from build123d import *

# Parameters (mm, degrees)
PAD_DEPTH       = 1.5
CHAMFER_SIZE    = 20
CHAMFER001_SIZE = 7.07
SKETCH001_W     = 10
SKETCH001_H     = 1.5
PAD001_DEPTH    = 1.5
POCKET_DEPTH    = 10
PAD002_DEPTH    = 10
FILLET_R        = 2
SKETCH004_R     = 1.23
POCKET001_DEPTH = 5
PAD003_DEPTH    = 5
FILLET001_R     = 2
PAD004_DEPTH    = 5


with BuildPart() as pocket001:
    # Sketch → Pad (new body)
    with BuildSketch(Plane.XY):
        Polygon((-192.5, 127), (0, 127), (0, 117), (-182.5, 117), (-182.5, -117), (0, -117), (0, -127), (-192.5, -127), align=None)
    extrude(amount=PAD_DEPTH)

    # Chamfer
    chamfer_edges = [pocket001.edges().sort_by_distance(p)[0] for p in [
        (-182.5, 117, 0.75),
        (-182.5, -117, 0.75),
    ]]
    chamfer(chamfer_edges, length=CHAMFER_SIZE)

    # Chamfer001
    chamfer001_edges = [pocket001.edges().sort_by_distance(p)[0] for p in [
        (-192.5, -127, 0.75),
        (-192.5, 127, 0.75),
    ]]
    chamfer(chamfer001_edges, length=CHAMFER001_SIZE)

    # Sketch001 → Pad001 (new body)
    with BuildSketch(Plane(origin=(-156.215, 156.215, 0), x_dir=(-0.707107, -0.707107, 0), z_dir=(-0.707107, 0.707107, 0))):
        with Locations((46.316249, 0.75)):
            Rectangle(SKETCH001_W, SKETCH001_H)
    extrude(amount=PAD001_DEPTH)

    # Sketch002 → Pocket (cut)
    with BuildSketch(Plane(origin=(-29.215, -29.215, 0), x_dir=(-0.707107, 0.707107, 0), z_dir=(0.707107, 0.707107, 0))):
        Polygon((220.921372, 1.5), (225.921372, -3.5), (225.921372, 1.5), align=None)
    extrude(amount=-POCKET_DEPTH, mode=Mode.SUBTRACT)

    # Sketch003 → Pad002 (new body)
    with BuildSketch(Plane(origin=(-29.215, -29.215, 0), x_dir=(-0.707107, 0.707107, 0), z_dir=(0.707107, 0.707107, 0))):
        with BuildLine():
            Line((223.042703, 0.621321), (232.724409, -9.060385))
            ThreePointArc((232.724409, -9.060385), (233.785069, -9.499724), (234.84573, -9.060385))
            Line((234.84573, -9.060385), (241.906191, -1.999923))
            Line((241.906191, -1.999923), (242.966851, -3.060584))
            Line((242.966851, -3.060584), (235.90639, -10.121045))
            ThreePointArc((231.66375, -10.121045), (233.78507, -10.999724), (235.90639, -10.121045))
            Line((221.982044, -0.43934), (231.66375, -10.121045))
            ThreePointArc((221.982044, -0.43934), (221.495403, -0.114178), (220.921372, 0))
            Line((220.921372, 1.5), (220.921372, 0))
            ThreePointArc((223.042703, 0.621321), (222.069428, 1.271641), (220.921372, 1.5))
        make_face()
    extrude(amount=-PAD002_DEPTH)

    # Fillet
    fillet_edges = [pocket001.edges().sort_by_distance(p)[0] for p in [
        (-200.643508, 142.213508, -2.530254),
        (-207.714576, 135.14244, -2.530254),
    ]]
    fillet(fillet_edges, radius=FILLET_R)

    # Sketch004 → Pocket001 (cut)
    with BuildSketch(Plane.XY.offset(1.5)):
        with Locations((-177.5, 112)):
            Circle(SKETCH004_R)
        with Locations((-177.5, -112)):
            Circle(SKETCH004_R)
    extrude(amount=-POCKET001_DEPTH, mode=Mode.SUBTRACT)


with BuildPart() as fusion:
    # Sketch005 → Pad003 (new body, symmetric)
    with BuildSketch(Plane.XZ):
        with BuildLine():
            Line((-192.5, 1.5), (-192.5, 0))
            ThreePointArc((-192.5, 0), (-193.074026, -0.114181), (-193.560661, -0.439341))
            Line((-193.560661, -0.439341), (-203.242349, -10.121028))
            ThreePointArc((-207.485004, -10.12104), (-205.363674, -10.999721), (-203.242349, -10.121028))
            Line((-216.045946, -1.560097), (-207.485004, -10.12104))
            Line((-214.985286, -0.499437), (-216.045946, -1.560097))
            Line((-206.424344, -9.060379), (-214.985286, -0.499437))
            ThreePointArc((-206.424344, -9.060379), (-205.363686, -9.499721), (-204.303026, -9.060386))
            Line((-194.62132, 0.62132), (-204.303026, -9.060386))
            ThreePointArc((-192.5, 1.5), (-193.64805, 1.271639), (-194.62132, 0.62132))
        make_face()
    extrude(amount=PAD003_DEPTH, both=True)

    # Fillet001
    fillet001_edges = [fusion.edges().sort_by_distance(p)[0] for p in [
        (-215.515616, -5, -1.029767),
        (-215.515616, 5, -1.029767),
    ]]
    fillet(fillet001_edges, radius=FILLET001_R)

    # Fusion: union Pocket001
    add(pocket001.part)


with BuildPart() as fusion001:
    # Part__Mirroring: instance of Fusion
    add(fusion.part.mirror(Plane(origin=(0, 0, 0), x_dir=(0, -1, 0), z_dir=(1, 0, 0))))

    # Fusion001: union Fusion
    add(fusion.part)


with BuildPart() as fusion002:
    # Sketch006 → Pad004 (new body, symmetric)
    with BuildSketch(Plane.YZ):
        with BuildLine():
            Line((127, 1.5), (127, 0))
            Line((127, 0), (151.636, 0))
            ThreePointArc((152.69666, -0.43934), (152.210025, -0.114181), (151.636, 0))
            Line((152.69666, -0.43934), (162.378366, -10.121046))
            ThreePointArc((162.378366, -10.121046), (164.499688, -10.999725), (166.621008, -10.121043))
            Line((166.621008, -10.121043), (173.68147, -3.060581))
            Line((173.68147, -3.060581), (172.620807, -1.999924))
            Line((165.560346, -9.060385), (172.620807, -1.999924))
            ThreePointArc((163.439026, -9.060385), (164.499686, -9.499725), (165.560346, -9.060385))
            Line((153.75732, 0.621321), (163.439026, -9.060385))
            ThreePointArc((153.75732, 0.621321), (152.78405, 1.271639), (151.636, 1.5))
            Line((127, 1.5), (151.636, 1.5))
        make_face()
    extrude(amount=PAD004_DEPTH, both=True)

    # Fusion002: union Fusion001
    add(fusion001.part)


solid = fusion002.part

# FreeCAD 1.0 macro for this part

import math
import FreeCAD as App
import Part
import Sketcher
Q = App.Units.Quantity


def edges_at(feature, points):
    """Names of the edges that pass closest to the given points."""
    edges = feature.Shape.Edges
    near = lambda p: min(range(len(edges)), key=lambda i: edges[i].distToShape(Part.Vertex(*p))[0])
    return sorted({f"Edge{near(p) + 1}" for p in points})


def add_polygon(sketch, points):
    """Adds a closed chain of lines whose ends are joined by coincident constraints."""
    first, n = sketch.GeometryCount, len(points)
    for a, b in zip(points, points[1:] + points[:1]):
        sketch.addGeometry(Part.LineSegment(App.Vector(*a, 0), App.Vector(*b, 0)), False)
    for i in range(n):
        sketch.addConstraint(Sketcher.Constraint("Coincident", first + i, 2, first + (i + 1) % n, 1))

doc = App.newDocument("Part")
body = doc.addObject("PartDesign::Body", "Body")

# Sketch on XY plane
sketch1 = doc.addObject("Sketcher::SketchObject", "Sketch")
body.addObject(sketch1)
sketch1.AttachmentSupport = (doc.XY_Plane, [""])
sketch1.MapMode = "FlatFace"
add_polygon(sketch1, [(0, 127), (-192, 127), (-192, -127), (0, -127), (0, -117), (-182, -117), (-182, 117), (0, 117)])  # lines 0-7
sketch1.addConstraint([
    Sketcher.Constraint("Horizontal", 0),
    Sketcher.Constraint("Vertical", 1),
    Sketcher.Constraint("Horizontal", 2),
    Sketcher.Constraint("Vertical", 3),
    Sketcher.Constraint("Horizontal", 4),
    Sketcher.Constraint("Vertical", 5),
    Sketcher.Constraint("Horizontal", 6),
    Sketcher.Constraint("Vertical", 7),
    Sketcher.Constraint("Symmetric", 3, 2, 6, 2, -1, 1),
    Sketcher.Constraint("Symmetric", 2, 2, 7, 2, -1),
    Sketcher.Constraint("DistanceY", 1, 2, 1, 1, 254.0),
    Sketcher.Constraint("DistanceY", 3, 1, 3, 2, 10.0),
    Sketcher.Constraint("DistanceX", 0, 2, 0, 1, 192.5),
    Sketcher.Constraint("DistanceX", 4, 2, 4, 1, 182.5),
])
pad1 = doc.addObject("PartDesign::Pad", "Pad")
body.addObject(pad1)
pad1.Profile = sketch1
pad1.Length = 1.5
doc.recompute()

chamfer = doc.addObject("PartDesign::Chamfer", "Chamfer")
body.addObject(chamfer)
chamfer.Base = (pad1, edges_at(pad1, [(-182.5, 117, 0.75), (-182.5, -117, 0.75)]))
chamfer.Size = 20
doc.recompute()

chamfer2 = doc.addObject("PartDesign::Chamfer", "Chamfer001")
body.addObject(chamfer2)
chamfer2.Base = (chamfer, edges_at(chamfer, [(-192.5, -127, 0.75), (-192.5, 127, 0.75)]))
chamfer2.Size = 7.07

# Sketch on an angled plane
sketch2 = doc.addObject("Sketcher::SketchObject", "Sketch001")
body.addObject(sketch2)
sketch2.Placement = App.Placement(App.Vector(-156.215, 156.215, 0), App.Rotation(App.Vector(-0.707106781, -0.707106781, 0), App.Vector(0, 0, 0.999999999), App.Vector(-0.707106781, 0.707106781, 0), "ZXY"))
add_polygon(sketch2, [(41.3, 1.5), (41.3, 0), (51.3, 0), (51.3, 1.5)])  # lines 0-3
sketch2.addConstraint([
    Sketcher.Constraint("Vertical", 0),
    Sketcher.Constraint("Horizontal", 1),
    Sketcher.Constraint("Vertical", 2),
    Sketcher.Constraint("Horizontal", 3),
    Sketcher.Constraint("PointOnObject", 0, 2, -1),
    Sketcher.Constraint("DistanceX", 1, 1, 1, 2, 10.0),
    Sketcher.Constraint("DistanceY", 0, 2, 0, 1, 1.5),
    Sketcher.Constraint("DistanceX", -1, 1, 0, 2, 41.316249),
])
pad2 = doc.addObject("PartDesign::Pad", "Pad001")
body.addObject(pad2)
pad2.Profile = sketch2
pad2.Length = 1.5

# Sketch on an angled plane
sketch3 = doc.addObject("Sketcher::SketchObject", "Sketch002")
body.addObject(sketch3)
sketch3.Placement = App.Placement(App.Vector(-29.215, -29.215, 0), App.Rotation(App.Vector(-0.707106781, 0.707106781, 0), App.Vector(0, 0, 0.999999999), App.Vector(0.707106781, 0.707106781, 0), "ZXY"))
add_polygon(sketch3, [(220.9, 1.5), (225.9, -3.5), (225.9, 1.5)])  # lines 0-2
sketch3.addConstraint([
    Sketcher.Constraint("Vertical", 1),
    Sketcher.Constraint("Horizontal", 2),
    Sketcher.Constraint("Equal", 2, 1),
    Sketcher.Constraint("DistanceX", 2, 2, 2, 1, 5.0),
    Sketcher.Constraint("DistanceY", 0, 2, -1, 1, 3.5),
    Sketcher.Constraint("DistanceX", -1, 1, 0, 2, 225.921372),
])
pocket1 = doc.addObject("PartDesign::Pocket", "Pocket")
body.addObject(pocket1)
pocket1.Profile = sketch3
pocket1.Length = 10

# Sketch on an angled plane
sketch4 = doc.addObject("Sketcher::SketchObject", "Sketch003")
body.addObject(sketch4)
sketch4.Placement = App.Placement(App.Vector(-29.215, -29.215, 0), App.Rotation(App.Vector(-0.707106781, 0.707106781, 0), App.Vector(0, 0, 0.999999999), App.Vector(0.707106781, 0.707106781, 0), "ZXY"))
sketch4.addGeometry([
    Part.LineSegment(App.Vector(232.7, -9.1, 0), App.Vector(223, 0.6, 0)),  # 0
    Part.ArcOfCircle(Part.Circle(App.Vector(220.9, -1.5, 0), App.Vector(0, 0, 1), 3), math.radians(45), math.radians(90)),  # 1
    Part.LineSegment(App.Vector(220.9, 1.5, 0), App.Vector(220.9, 0, 0)),  # 2
    Part.ArcOfCircle(Part.Circle(App.Vector(220.9, -1.5, 0), App.Vector(0, 0, 1), 1.5), math.radians(45), math.radians(90)),  # 3
    Part.LineSegment(App.Vector(222, -0.4, 0), App.Vector(231.7, -10.1, 0)),  # 4
    Part.ArcOfCircle(Part.Circle(App.Vector(233.8, -8, 0), App.Vector(0, 0, 1), 3), math.radians(-135), math.radians(-45)),  # 5
    Part.LineSegment(App.Vector(235.9, -10.1, 0), App.Vector(243, -3.1, 0)),  # 6
    Part.LineSegment(App.Vector(243, -3.1, 0), App.Vector(241.9, -2, 0)),  # 7
    Part.LineSegment(App.Vector(241.9, -2, 0), App.Vector(234.8, -9.1, 0)),  # 8
    Part.ArcOfCircle(Part.Circle(App.Vector(233.8, -8, 0), App.Vector(0, 0, 1), 1.5), math.radians(-135), math.radians(-45)),  # 9
], False)
sketch4.addConstraint([
    Sketcher.Constraint("Tangent", 0, 2, 1, 1),
    Sketcher.Constraint("Coincident", 1, 2, 2, 1),
    Sketcher.Constraint("Coincident", 2, 2, 3, 2),
    Sketcher.Constraint("Tangent", 3, 1, 4, 1),
    Sketcher.Constraint("Tangent", 4, 2, 5, 1),
    Sketcher.Constraint("Tangent", 5, 2, 6, 1),
    Sketcher.Constraint("Coincident", 6, 2, 7, 1),
    Sketcher.Constraint("Coincident", 7, 2, 8, 1),
    Sketcher.Constraint("Tangent", 8, 2, 9, 2),
    Sketcher.Constraint("Tangent", 9, 1, 0, 1),
    Sketcher.Constraint("Vertical", 2),
    Sketcher.Constraint("Coincident", 3, 3, 1, 3),
    Sketcher.Constraint("Coincident", 9, 3, 5, 3),
    Sketcher.Constraint("Equal", 1, 5),
    Sketcher.Constraint("PointOnObject", 2, 2, -1),
    Sketcher.Constraint("Parallel", 0, 4),
    Sketcher.Constraint("Perpendicular", 4, 6),
    Sketcher.Constraint("Perpendicular", 6, 7),
    Sketcher.Constraint("Perpendicular", 7, 8),
    Sketcher.Constraint("Horizontal", 4, 2, 5, 2),
    Sketcher.Constraint("Radius", 1, 2.999999),
    Sketcher.Constraint("DistanceY", 2, 2, 2, 1, 1.5),
    Sketcher.Constraint("Distance", 0, 13.692),
    Sketcher.Constraint("Distance", 6, 9.985),
    Sketcher.Constraint("DistanceX", -1, 1, 5, 3, 233.78507),
    Sketcher.Constraint("DistanceX", -1, 1, 1, 2, 220.921372),
])
pad3 = doc.addObject("PartDesign::Pad", "Pad002")
body.addObject(pad3)
pad3.Profile = sketch4
pad3.Length = 10
pad3.Reversed = True
doc.recompute()

fillet = doc.addObject("PartDesign::Fillet", "Fillet")
body.addObject(fillet)
fillet.Base = (pad3, edges_at(pad3, [(-200.644, 142.214, -2.53), (-207.715, 135.142, -2.53)]))
fillet.Radius = 2

# Sketch on XY plane
sketch5 = doc.addObject("Sketcher::SketchObject", "Sketch004")
body.addObject(sketch5)
sketch5.AttachmentSupport = (doc.XY_Plane, [""])
sketch5.MapMode = "FlatFace"
sketch5.AttachmentOffset = App.Placement(App.Vector(0, 0, 1.5), App.Rotation())
sketch5.addGeometry([
    Part.Circle(App.Vector(-177.5, 112, 0), App.Vector(0, 0, 1), 1.2),
    Part.Circle(App.Vector(-177.5, -112, 0), App.Vector(0, 0, 1), 1.2),
], False)
sketch5.addConstraint([
    Sketcher.Constraint("Equal", 0, 1),
    Sketcher.Constraint("Symmetric", 0, 3, 1, 3, -1),
    Sketcher.Constraint("Diameter", 0, 2.46),
    Sketcher.Constraint("DistanceY", -1, 1, 0, 3, 112.0),
    Sketcher.Constraint("DistanceX", 0, 3, -1, 1, 177.5),
])
pocket2 = doc.addObject("PartDesign::Pocket", "Pocket001")
body.addObject(pocket2)
pocket2.Profile = sketch5
pocket2.Length = 5
body2 = doc.addObject("PartDesign::Body", "Body001")

# Sketch on XZ plane
sketch6 = doc.addObject("Sketcher::SketchObject", "Sketch005")
body2.addObject(sketch6)
sketch6.AttachmentSupport = (doc.getObject("XZ_Plane001"), [""])
sketch6.MapMode = "FlatFace"
sketch6.addGeometry([
    Part.LineSegment(App.Vector(-192.5, 0, 0), App.Vector(-192.5, 1.5, 0)),  # 0
    Part.ArcOfCircle(Part.Circle(App.Vector(-192.5, -1.5, 0), App.Vector(0, 0, 1), 3), math.radians(90), math.radians(135)),  # 1
    Part.LineSegment(App.Vector(-194.6, 0.6, 0), App.Vector(-204.3, -9.1, 0)),  # 2
    Part.ArcOfCircle(Part.Circle(App.Vector(-205.4, -8, 0), App.Vector(0, 0, 1), 1.5), math.radians(-135), math.radians(-45)),  # 3
    Part.LineSegment(App.Vector(-206.4, -9.1, 0), App.Vector(-215, -0.5, 0)),  # 4
    Part.LineSegment(App.Vector(-215, -0.5, 0), App.Vector(-216, -1.6, 0)),  # 5
    Part.LineSegment(App.Vector(-216, -1.6, 0), App.Vector(-207.5, -10.1, 0)),  # 6
    Part.ArcOfCircle(Part.Circle(App.Vector(-205.4, -8, 0), App.Vector(0, 0, 1), 3), math.radians(-135), math.radians(-45)),  # 7
    Part.LineSegment(App.Vector(-203.2, -10.1, 0), App.Vector(-193.6, -0.4, 0)),  # 8
    Part.ArcOfCircle(Part.Circle(App.Vector(-192.5, -1.5, 0), App.Vector(0, 0, 1), 1.5), math.radians(90), math.radians(135)),  # 9
], False)
sketch6.addConstraint([
    Sketcher.Constraint("Coincident", 0, 2, 1, 1),
    Sketcher.Constraint("Tangent", 1, 2, 2, 1),
    Sketcher.Constraint("Coincident", 2, 2, 3, 2),
    Sketcher.Constraint("Tangent", 3, 1, 4, 1),
    Sketcher.Constraint("Coincident", 4, 2, 5, 1),
    Sketcher.Constraint("Coincident", 5, 2, 6, 1),
    Sketcher.Constraint("Tangent", 6, 2, 7, 1),
    Sketcher.Constraint("Coincident", 7, 2, 8, 1),
    Sketcher.Constraint("Tangent", 8, 2, 9, 2),
    Sketcher.Constraint("Coincident", 9, 1, 0, 1),
    Sketcher.Constraint("Vertical", 0),
    Sketcher.Constraint("Coincident", 7, 3, 3, 3),
    Sketcher.Constraint("Coincident", 9, 3, 1, 3),
    Sketcher.Constraint("PointOnObject", 9, 1, -1),
    Sketcher.Constraint("Perpendicular", 2, 4),
    Sketcher.Constraint("Perpendicular", 4, 5),
    Sketcher.Constraint("Perpendicular", 5, 6),
    Sketcher.Constraint("Perpendicular", 6, 8),
    Sketcher.Constraint("Vertical", 9, 3, 0, 2),
    Sketcher.Constraint("Radius", 7, 3.0),
    Sketcher.Constraint("Radius", 3, 1.5),
    Sketcher.Constraint("Angle", 2, Q("-135 deg")),
    Sketcher.Constraint("DistanceX", 1, 3, -1, 1, 192.500002),
    Sketcher.Constraint("Distance", 2, 13.692),
    Sketcher.Constraint("Distance", 4, 12.107),
    Sketcher.Constraint("Radius", 1, 2.999994),
    Sketcher.Constraint("DistanceY", 3, 1, 1, 2, 9.681699),
    Sketcher.Constraint("DistanceX", 7, 2, -1, 1, 203.242349),
])
pad4 = doc.addObject("PartDesign::Pad", "Pad003")
body2.addObject(pad4)
pad4.Profile = sketch6
pad4.Length = 10
pad4.Midplane = True
doc.recompute()

fillet2 = doc.addObject("PartDesign::Fillet", "Fillet001")
body2.addObject(fillet2)
fillet2.Base = (pad4, edges_at(pad4, [(-215.516, -5, -1.03), (-215.516, 5, -1.03)]))
fillet2.Radius = 2
doc.recompute()

boolean = doc.addObject("PartDesign::Boolean", "Boolean")
body2.addObject(boolean)
boolean.Type = "Fuse"
boolean.addObjects([body])
body3 = doc.addObject("PartDesign::Body", "Body002")
doc.recompute()

mirroring = doc.addObject("Part::Mirroring", "Mirroring")
mirroring.Source = body2
mirroring.Base = App.Vector(0, 0, 0)
mirroring.Normal = App.Vector(1, 0, 0)
body3.BaseFeature = mirroring
doc.recompute()

boolean2 = doc.addObject("PartDesign::Boolean", "Boolean001")
body3.addObject(boolean2)
boolean2.Type = "Fuse"
boolean2.addObjects([body2])
body4 = doc.addObject("PartDesign::Body", "Body003")

# Sketch on YZ plane
sketch7 = doc.addObject("Sketcher::SketchObject", "Sketch006")
body4.addObject(sketch7)
sketch7.AttachmentSupport = (doc.getObject("YZ_Plane003"), [""])
sketch7.MapMode = "FlatFace"
sketch7.addGeometry([
    Part.LineSegment(App.Vector(127, 1.5, 0), App.Vector(127, 0, 0)),  # 0
    Part.LineSegment(App.Vector(127, 0, 0), App.Vector(151.6, 0, 0)),  # 1
    Part.ArcOfCircle(Part.Circle(App.Vector(151.6, -1.5, 0), App.Vector(0, 0, 1), 1.5), math.radians(45), math.radians(90)),  # 2
    Part.LineSegment(App.Vector(152.7, -0.4, 0), App.Vector(162.4, -10.1, 0)),  # 3
    Part.ArcOfCircle(Part.Circle(App.Vector(164.5, -8, 0), App.Vector(0, 0, 1), 3), math.radians(-135), math.radians(-45)),  # 4
    Part.LineSegment(App.Vector(166.6, -10.1, 0), App.Vector(173.7, -3.1, 0)),  # 5
    Part.LineSegment(App.Vector(173.7, -3.1, 0), App.Vector(172.6, -2, 0)),  # 6
    Part.LineSegment(App.Vector(172.6, -2, 0), App.Vector(165.6, -9.1, 0)),  # 7
    Part.ArcOfCircle(Part.Circle(App.Vector(164.5, -8, 0), App.Vector(0, 0, 1), 1.5), math.radians(-135), math.radians(-45)),  # 8
    Part.LineSegment(App.Vector(163.4, -9.1, 0), App.Vector(153.8, 0.6, 0)),  # 9
    Part.ArcOfCircle(Part.Circle(App.Vector(151.6, -1.5, 0), App.Vector(0, 0, 1), 3), math.radians(45), math.radians(90)),  # 10
    Part.LineSegment(App.Vector(151.6, 1.5, 0), App.Vector(127, 1.5, 0)),  # 11
], False)
sketch7.addConstraint([
    Sketcher.Constraint("Coincident", 0, 2, 1, 1),
    Sketcher.Constraint("Tangent", 1, 2, 2, 2),
    Sketcher.Constraint("Tangent", 2, 1, 3, 1),
    Sketcher.Constraint("Tangent", 3, 2, 4, 1),
    Sketcher.Constraint("Tangent", 4, 2, 5, 1),
    Sketcher.Constraint("Coincident", 5, 2, 6, 1),
    Sketcher.Constraint("Coincident", 6, 2, 7, 1),
    Sketcher.Constraint("Tangent", 7, 2, 8, 2),
    Sketcher.Constraint("Tangent", 8, 1, 9, 1),
    Sketcher.Constraint("Tangent", 9, 2, 10, 1),
    Sketcher.Constraint("Tangent", 10, 2, 11, 1),
    Sketcher.Constraint("Coincident", 11, 2, 0, 1),
    Sketcher.Constraint("Vertical", 0),
    Sketcher.Constraint("Horizontal", 1),
    Sketcher.Constraint("Horizontal", 11),
    Sketcher.Constraint("Coincident", 8, 3, 4, 3),
    Sketcher.Constraint("Coincident", 10, 3, 2, 3),
    Sketcher.Constraint("Equal", 4, 10),
    Sketcher.Constraint("PointOnObject", 0, 2, -1),
    Sketcher.Constraint("Perpendicular", 3, 5),
    Sketcher.Constraint("Parallel", 5, 7),
    Sketcher.Constraint("Perpendicular", 7, 9),
    Sketcher.Constraint("Horizontal", 7, 2, 8, 1),
    Sketcher.Constraint("Equal", 5, 7),
    Sketcher.Constraint("Radius", 4, 3.0),
    Sketcher.Constraint("Radius", 8, 1.499999),
    Sketcher.Constraint("DistanceX", -1, 1, 0, 2, 127.0),
    Sketcher.Constraint("DistanceX", 1, 1, 1, 2, 24.636),
    Sketcher.Constraint("Distance", 3, 13.692),
    Sketcher.Constraint("Distance", 5, 9.985001),
])
pad5 = doc.addObject("PartDesign::Pad", "Pad004")
body4.addObject(pad5)
pad5.Profile = sketch7
pad5.Length = 10
pad5.Midplane = True
doc.recompute()

boolean3 = doc.addObject("PartDesign::Boolean", "Boolean002")
body4.addObject(boolean3)
boolean3.Type = "Fuse"
boolean3.addObjects([body3])
mirroring.Visibility = False

doc.recompute()
